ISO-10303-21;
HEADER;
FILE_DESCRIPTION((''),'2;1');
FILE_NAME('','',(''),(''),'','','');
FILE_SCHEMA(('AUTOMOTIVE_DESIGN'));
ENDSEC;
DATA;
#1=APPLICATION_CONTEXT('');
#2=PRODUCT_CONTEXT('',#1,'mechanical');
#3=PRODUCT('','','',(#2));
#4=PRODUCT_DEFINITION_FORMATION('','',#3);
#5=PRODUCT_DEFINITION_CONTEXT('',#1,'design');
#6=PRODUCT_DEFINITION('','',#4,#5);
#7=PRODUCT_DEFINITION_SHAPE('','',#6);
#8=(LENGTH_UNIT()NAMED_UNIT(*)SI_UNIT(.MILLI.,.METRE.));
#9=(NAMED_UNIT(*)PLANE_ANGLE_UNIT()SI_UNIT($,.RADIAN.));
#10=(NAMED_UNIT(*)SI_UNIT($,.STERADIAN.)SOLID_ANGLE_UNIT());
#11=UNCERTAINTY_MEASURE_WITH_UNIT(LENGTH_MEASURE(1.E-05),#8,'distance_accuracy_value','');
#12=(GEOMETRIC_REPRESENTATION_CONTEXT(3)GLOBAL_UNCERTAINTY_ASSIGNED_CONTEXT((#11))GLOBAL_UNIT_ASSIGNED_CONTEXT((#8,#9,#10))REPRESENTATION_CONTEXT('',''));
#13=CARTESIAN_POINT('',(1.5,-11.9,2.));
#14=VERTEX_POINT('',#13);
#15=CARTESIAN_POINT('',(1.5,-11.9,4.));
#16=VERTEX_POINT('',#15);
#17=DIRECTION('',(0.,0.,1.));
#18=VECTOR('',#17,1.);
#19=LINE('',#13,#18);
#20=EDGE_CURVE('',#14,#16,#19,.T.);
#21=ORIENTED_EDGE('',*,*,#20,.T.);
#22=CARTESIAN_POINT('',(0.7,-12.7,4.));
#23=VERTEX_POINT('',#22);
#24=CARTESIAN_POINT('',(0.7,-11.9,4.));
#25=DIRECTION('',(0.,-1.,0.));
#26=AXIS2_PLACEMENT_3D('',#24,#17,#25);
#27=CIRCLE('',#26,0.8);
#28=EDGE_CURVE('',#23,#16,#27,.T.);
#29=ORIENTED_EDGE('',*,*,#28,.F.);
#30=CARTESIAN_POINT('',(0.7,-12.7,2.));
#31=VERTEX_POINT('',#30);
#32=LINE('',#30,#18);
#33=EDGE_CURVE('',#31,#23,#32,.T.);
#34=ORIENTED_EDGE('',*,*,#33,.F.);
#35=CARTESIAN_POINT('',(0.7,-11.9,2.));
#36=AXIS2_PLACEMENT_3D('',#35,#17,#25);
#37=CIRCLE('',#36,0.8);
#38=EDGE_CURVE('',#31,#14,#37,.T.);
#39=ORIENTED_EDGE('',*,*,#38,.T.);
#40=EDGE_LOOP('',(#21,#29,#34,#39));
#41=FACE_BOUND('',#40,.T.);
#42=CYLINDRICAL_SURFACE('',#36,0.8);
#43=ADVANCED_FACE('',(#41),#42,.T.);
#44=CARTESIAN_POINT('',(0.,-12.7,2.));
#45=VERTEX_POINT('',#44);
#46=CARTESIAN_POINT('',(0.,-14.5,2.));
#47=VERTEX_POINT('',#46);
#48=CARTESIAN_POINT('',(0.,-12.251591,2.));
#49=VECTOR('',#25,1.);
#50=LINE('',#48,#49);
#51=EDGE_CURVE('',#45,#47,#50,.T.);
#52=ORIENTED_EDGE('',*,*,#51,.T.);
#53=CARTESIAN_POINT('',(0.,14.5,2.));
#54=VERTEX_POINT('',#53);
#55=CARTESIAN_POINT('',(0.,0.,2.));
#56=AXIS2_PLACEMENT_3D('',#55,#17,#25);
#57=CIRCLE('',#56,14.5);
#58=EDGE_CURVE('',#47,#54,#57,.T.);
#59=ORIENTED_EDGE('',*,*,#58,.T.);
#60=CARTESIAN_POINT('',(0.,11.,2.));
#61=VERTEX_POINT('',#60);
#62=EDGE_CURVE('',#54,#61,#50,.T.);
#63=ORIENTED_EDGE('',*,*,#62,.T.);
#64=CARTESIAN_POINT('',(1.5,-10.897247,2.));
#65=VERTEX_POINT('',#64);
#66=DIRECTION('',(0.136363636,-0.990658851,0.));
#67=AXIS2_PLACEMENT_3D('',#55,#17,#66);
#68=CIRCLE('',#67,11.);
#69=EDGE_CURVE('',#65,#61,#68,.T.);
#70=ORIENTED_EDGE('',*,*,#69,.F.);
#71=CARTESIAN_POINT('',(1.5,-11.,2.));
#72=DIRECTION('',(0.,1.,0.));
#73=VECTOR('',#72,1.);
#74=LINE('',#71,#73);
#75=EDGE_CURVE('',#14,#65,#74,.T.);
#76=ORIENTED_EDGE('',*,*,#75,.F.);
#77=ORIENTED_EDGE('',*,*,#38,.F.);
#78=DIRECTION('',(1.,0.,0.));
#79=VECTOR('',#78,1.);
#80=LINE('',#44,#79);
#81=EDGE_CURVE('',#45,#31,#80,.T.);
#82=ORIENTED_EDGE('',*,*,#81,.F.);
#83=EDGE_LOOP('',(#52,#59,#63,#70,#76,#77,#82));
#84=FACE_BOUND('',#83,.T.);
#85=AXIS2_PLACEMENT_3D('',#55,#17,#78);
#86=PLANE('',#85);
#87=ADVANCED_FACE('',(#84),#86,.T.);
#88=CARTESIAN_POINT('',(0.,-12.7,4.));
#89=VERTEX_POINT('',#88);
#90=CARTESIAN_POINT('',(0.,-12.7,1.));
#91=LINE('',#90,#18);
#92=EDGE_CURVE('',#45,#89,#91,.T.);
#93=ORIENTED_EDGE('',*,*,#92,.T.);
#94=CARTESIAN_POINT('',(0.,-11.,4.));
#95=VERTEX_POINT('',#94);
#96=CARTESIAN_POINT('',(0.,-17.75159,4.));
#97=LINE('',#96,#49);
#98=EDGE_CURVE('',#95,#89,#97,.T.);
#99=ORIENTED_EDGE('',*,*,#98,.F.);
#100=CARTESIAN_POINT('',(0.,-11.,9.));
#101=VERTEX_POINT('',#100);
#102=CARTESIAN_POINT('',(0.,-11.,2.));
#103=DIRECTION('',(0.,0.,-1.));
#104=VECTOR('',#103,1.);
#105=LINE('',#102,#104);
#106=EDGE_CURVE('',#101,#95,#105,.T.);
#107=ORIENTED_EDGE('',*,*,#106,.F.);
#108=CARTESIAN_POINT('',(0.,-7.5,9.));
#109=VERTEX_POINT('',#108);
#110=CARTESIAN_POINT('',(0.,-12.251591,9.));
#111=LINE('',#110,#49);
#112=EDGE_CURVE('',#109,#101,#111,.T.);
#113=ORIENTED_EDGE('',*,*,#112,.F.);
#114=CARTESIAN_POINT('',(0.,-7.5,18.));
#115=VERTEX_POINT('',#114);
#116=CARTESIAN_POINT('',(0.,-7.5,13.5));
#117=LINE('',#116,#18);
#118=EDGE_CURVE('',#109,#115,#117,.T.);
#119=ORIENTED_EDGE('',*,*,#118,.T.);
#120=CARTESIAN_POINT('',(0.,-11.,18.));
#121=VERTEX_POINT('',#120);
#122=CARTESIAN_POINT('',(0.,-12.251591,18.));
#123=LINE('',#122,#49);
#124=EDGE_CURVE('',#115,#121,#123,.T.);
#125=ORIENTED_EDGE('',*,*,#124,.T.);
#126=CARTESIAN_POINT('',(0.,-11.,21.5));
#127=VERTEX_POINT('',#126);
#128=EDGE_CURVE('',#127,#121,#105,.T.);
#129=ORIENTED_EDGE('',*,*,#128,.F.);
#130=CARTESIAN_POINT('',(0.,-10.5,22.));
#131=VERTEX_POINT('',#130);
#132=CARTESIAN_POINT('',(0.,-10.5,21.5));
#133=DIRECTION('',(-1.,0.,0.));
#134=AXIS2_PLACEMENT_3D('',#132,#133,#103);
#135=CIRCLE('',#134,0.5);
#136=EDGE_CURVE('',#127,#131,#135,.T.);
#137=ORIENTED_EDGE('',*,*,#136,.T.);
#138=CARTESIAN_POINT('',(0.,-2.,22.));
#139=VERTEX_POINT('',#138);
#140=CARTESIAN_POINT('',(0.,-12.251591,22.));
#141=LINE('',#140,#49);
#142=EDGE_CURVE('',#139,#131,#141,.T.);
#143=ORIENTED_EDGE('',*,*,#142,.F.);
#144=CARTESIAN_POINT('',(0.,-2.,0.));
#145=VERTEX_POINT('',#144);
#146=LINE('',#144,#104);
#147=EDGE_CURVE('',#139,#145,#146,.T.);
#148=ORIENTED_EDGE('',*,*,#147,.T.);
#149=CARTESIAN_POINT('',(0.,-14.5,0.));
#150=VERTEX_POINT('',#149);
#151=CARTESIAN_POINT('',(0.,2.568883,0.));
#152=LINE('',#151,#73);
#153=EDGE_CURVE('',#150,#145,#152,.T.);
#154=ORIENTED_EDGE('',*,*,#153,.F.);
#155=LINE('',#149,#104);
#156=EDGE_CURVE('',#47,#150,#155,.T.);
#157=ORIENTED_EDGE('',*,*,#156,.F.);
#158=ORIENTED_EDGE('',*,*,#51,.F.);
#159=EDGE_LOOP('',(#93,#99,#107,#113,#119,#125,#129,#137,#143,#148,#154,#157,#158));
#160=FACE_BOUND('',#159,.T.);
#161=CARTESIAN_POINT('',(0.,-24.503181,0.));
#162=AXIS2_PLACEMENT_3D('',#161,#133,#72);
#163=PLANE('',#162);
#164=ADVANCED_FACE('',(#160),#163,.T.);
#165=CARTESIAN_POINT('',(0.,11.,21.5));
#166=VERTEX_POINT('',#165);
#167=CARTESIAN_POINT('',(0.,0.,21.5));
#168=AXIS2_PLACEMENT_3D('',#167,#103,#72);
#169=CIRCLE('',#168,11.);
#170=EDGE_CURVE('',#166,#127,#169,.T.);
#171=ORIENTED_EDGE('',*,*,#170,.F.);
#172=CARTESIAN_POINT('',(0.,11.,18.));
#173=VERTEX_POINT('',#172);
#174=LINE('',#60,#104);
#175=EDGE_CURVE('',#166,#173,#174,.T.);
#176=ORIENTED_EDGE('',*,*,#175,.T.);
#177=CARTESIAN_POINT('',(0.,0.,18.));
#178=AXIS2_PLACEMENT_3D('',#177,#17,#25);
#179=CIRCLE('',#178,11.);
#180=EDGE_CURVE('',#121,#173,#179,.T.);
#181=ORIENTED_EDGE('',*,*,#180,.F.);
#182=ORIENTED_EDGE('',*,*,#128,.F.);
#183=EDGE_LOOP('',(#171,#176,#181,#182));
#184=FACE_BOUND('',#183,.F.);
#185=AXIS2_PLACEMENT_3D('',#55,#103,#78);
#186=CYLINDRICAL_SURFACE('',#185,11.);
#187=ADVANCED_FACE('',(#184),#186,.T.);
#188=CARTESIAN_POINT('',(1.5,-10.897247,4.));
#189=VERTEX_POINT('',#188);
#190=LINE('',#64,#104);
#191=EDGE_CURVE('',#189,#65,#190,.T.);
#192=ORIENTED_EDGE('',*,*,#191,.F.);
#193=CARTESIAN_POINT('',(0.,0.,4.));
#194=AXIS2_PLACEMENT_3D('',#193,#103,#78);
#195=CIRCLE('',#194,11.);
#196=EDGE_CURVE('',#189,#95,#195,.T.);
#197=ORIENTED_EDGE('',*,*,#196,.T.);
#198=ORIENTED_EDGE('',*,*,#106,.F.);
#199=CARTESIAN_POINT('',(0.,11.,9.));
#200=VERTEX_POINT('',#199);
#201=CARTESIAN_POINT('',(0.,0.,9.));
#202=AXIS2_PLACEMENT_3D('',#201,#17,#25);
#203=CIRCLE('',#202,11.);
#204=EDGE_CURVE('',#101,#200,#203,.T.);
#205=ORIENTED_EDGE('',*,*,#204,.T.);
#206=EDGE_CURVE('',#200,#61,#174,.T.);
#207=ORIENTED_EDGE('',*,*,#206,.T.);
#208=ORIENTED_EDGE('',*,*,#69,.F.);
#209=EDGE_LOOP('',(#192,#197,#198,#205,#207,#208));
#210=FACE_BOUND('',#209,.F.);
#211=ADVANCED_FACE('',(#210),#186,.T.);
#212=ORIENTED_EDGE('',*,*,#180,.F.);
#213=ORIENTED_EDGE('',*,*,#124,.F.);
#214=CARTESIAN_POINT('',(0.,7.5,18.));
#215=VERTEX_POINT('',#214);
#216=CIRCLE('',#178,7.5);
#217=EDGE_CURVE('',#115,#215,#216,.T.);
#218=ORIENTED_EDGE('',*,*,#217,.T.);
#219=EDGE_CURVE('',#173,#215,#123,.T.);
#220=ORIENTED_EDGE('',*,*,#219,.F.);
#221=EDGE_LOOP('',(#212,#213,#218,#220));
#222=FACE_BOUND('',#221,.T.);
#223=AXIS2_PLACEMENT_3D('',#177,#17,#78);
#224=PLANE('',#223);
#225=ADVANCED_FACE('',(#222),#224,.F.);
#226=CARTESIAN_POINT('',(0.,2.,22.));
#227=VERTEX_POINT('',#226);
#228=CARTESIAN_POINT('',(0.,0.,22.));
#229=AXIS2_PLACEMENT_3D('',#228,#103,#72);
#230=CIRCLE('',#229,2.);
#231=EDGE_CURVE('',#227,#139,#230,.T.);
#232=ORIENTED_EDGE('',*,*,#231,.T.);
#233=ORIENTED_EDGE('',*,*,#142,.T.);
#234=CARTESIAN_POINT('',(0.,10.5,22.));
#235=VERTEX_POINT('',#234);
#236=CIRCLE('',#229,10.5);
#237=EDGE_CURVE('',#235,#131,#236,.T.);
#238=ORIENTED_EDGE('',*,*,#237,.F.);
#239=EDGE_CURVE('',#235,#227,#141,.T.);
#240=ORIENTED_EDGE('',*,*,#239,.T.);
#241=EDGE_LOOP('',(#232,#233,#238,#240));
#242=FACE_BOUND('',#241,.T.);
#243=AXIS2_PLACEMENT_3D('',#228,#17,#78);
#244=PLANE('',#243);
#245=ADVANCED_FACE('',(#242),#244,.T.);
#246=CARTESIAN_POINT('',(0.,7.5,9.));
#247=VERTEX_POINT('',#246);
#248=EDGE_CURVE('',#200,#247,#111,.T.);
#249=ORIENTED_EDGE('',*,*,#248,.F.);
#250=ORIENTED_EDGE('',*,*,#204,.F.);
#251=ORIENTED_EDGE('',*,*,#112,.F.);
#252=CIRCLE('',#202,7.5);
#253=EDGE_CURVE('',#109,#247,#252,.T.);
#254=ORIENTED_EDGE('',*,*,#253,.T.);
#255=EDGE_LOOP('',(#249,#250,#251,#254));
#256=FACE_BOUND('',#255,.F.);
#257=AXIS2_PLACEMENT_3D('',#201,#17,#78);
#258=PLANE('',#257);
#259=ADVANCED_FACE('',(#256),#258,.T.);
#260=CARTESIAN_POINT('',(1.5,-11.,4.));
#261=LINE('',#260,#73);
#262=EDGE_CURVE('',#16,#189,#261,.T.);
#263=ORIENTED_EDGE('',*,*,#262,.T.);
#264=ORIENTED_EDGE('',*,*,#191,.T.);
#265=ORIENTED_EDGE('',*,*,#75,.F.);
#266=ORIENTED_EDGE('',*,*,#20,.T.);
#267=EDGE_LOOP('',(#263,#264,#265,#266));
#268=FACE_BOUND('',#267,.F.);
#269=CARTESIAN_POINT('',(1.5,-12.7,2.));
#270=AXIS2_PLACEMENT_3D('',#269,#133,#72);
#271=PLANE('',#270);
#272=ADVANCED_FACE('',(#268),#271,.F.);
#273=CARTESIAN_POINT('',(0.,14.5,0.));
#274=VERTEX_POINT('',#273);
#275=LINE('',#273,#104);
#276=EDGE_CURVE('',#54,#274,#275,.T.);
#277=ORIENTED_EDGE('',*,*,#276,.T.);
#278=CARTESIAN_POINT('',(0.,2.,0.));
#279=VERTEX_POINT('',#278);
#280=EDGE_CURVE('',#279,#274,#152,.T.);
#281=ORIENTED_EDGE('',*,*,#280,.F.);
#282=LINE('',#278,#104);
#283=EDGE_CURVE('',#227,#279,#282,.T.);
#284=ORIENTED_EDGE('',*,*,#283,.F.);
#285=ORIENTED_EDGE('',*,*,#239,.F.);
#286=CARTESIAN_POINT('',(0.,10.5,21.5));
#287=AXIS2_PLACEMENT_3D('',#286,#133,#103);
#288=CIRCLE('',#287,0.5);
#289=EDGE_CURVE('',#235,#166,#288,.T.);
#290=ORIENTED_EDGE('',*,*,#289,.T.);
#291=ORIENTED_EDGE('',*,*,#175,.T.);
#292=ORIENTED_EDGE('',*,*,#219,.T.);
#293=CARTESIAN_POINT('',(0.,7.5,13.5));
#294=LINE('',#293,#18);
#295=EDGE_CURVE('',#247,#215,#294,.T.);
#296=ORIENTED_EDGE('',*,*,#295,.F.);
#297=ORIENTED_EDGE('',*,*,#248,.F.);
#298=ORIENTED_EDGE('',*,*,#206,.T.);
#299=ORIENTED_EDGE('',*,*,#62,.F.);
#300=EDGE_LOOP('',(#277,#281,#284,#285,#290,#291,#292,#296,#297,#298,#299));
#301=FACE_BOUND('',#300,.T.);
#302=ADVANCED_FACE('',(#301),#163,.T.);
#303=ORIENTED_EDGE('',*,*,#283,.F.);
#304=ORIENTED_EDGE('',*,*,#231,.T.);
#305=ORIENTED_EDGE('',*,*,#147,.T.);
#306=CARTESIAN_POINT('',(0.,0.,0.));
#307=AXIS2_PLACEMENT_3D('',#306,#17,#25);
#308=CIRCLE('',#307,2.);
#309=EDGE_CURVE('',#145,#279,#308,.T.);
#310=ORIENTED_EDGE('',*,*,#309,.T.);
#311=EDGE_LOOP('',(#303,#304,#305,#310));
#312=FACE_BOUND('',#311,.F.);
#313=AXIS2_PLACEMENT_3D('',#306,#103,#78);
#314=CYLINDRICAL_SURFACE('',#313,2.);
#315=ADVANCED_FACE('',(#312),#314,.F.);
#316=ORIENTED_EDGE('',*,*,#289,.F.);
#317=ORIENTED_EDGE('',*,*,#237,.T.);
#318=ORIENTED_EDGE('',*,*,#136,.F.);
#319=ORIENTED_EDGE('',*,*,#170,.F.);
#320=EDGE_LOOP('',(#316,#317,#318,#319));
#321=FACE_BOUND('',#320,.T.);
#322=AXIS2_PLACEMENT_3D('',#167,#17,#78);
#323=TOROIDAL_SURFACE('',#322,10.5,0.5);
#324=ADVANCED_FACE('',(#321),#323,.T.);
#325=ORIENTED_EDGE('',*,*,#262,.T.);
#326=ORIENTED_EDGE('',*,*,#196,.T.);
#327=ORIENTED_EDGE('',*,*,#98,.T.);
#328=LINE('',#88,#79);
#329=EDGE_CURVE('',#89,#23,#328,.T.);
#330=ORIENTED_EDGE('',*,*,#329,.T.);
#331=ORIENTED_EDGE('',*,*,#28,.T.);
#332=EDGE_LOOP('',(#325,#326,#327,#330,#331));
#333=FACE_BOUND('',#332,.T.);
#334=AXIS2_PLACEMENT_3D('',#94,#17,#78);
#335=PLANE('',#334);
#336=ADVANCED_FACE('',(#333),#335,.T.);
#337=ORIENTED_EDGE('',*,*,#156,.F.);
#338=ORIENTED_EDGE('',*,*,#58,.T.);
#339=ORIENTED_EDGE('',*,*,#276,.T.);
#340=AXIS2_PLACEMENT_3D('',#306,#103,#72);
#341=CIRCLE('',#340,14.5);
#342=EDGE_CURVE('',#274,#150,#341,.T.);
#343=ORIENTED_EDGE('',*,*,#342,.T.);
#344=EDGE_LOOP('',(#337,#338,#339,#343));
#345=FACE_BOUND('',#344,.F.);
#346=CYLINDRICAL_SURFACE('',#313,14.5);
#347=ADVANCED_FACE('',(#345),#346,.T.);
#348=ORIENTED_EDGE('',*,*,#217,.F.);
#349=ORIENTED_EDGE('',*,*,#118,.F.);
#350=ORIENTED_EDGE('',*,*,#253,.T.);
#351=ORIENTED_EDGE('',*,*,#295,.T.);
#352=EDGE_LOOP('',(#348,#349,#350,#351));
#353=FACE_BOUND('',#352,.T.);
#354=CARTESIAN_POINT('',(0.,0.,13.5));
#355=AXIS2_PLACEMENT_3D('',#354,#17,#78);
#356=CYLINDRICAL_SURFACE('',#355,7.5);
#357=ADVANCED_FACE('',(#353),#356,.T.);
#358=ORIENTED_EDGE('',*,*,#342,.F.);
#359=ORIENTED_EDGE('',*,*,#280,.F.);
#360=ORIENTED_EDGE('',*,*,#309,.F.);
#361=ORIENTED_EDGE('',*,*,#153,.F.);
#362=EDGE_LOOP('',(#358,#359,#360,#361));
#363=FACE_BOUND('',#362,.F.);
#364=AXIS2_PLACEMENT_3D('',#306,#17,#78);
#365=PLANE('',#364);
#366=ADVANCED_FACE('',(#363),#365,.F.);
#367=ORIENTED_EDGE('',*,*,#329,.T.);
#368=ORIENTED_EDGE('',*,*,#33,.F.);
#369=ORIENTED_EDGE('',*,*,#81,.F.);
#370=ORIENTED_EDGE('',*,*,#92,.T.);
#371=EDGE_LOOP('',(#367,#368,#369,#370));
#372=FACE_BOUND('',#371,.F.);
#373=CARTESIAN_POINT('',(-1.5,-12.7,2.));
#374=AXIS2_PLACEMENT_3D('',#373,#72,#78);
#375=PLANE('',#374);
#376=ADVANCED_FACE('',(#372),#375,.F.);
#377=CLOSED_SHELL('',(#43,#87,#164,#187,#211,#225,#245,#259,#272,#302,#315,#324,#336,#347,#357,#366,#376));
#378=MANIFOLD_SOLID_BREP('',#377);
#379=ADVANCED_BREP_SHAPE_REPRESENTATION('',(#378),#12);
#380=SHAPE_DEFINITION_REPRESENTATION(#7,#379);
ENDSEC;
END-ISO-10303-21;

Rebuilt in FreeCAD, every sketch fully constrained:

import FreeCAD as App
import Part
import Sketcher
Q = App.Units.Quantity


def edges_at(feature, points):
    """Names of the edges that pass closest to the given points."""
    edges = feature.Shape.Edges
    near = lambda p: min(range(len(edges)), key=lambda i: edges[i].distToShape(Part.Vertex(*p))[0])
    return sorted({f"Edge{near(p) + 1}" for p in points})

doc = App.newDocument("Part")
body = doc.addObject("PartDesign::Body", "Body")

sketch1 = body.newObject("Sketcher::SketchObject", "Sketch")
sketch1.AttachmentSupport = (doc.getObject("XY_Plane"), [""])
sketch1.MapMode = "FlatFace"
sketch1.addGeometry(Part.Circle(App.Vector(0, 0, 0), App.Vector(0, 0, 1), 14.5), False)
sketch1.addConstraint([
    Sketcher.Constraint("Coincident", 0, 3, -1, 1),
    Sketcher.Constraint("Diameter", 0, Q("29 mm")),
])
pad1 = body.newObject("PartDesign::Pad", "Pad")
pad1.Profile = sketch1
pad1.Length = 2

sketch2 = body.newObject("Sketcher::SketchObject", "Sketch001")
sketch2.AttachmentSupport = (doc.getObject("XY_Plane"), [""])
sketch2.MapMode = "FlatFace"
sketch2.AttachmentOffset = App.Placement(App.Vector(0, 0, 2), App.Rotation())
sketch2.addGeometry(Part.Circle(App.Vector(0, 0, 0), App.Vector(0, 0, 1), 11), False)
sketch2.addConstraint([
    Sketcher.Constraint("Coincident", 0, 3, -1, 1),
    Sketcher.Constraint("Diameter", 0, Q("22 mm")),
])
pad2 = body.newObject("PartDesign::Pad", "Pad001")
pad2.Profile = sketch2
pad2.Length = 20

sketch3 = body.newObject("Sketcher::SketchObject", "Sketch002")
sketch3.AttachmentSupport = (doc.getObject("XY_Plane"), [""])
sketch3.MapMode = "FlatFace"
sketch3.addGeometry(Part.Circle(App.Vector(0, 0, 0), App.Vector(0, 0, 1), 2), False)
sketch3.addConstraint([
    Sketcher.Constraint("Coincident", 0, 3, -1, 1),
    Sketcher.Constraint("Diameter", 0, Q("4 mm")),
])
pocket1 = body.newObject("PartDesign::Pocket", "Pocket")
pocket1.Profile = sketch3
pocket1.Type = "ThroughAll"
pocket1.Reversed = True

sketch4 = body.newObject("Sketcher::SketchObject", "Sketch003")
sketch4.AttachmentSupport = (doc.getObject("XY_Plane"), [""])
sketch4.MapMode = "FlatFace"
sketch4.AttachmentOffset = App.Placement(App.Vector(0, 0, 2), App.Rotation())
sketch4.addGeometry([
    Part.LineSegment(App.Vector(-1.5, -9.3, 0), App.Vector(-1.5, -12.7, 0)),
    Part.LineSegment(App.Vector(-1.5, -12.7, 0), App.Vector(1.5, -12.7, 0)),
    Part.LineSegment(App.Vector(1.5, -12.7, 0), App.Vector(1.5, -9.3, 0)),
    Part.LineSegment(App.Vector(1.5, -9.3, 0), App.Vector(-1.5, -9.3, 0)),
], False)
sketch4.addConstraint([
    Sketcher.Constraint("Coincident", 0, 2, 1, 1),
    Sketcher.Constraint("Coincident", 1, 2, 2, 1),
    Sketcher.Constraint("Coincident", 2, 2, 3, 1),
    Sketcher.Constraint("Coincident", 3, 2, 0, 1),
    Sketcher.Constraint("Vertical", 0),
    Sketcher.Constraint("Horizontal", 1),
    Sketcher.Constraint("Vertical", 2),
    Sketcher.Constraint("Horizontal", 3),
    Sketcher.Constraint("DistanceX", 1, 1, 1, 2, Q("3 mm")),
    Sketcher.Constraint("DistanceY", 0, 2, 0, 1, Q("3.4 mm")),
    Sketcher.Constraint("DistanceX", 0, 2, -1, 1, Q("1.5 mm")),
    Sketcher.Constraint("DistanceY", 0, 2, -1, 1, Q("12.7 mm")),
])
pad3 = body.newObject("PartDesign::Pad", "Pad002")
pad3.Profile = sketch4
pad3.Length = 2
doc.recompute()

fillet = body.newObject("PartDesign::Fillet", "Fillet")
fillet.Base = (pad3, edges_at(pad3, [(-1.5, -12.7, 3), (1.5, -12.7, 3)]))
fillet.Radius = 0.8
doc.recompute()

fillet2 = body.newObject("PartDesign::Fillet", "Fillet001")
fillet2.Base = (fillet, edges_at(fillet, [(-11, 0, 22)]))
fillet2.Radius = 0.5

sketch5 = body.newObject("Sketcher::SketchObject", "Sketch004")
sketch5.AttachmentSupport = (doc.getObject("XY_Plane"), [""])
sketch5.MapMode = "FlatFace"
sketch5.addGeometry([
    Part.LineSegment(App.Vector(-28.85052, 29.640947, 0), App.Vector(-28.85052, -24.503181, 0)),
    Part.LineSegment(App.Vector(-28.85052, -24.503181, 0), App.Vector(0, -24.503181, 0)),
    Part.LineSegment(App.Vector(0, -24.503181, 0), App.Vector(0, 29.640947, 0)),
    Part.LineSegment(App.Vector(0, 29.640947, 0), App.Vector(-28.85052, 29.640947, 0)),
], False)
sketch5.addConstraint([
    Sketcher.Constraint("Coincident", 0, 2, 1, 1),
    Sketcher.Constraint("Coincident", 1, 2, 2, 1),
    Sketcher.Constraint("Coincident", 2, 2, 3, 1),
    Sketcher.Constraint("Coincident", 3, 2, 0, 1),
    Sketcher.Constraint("Vertical", 0),
    Sketcher.Constraint("Horizontal", 1),
    Sketcher.Constraint("Vertical", 2),
    Sketcher.Constraint("Horizontal", 3),
    Sketcher.Constraint("PointOnObject", 1, 2, -2),
    Sketcher.Constraint("DistanceX", 1, 1, 1, 2, Q("28.85052 mm")),
    Sketcher.Constraint("DistanceY", 0, 2, 0, 1, Q("54.144128 mm")),
    Sketcher.Constraint("DistanceY", 0, 2, -1, 1, Q("24.503181 mm")),
])
pocket2 = body.newObject("PartDesign::Pocket", "Pocket001")
pocket2.Profile = sketch5
pocket2.Type = "ThroughAll"
pocket2.Reversed = True

sketch6 = body.newObject("Sketcher::SketchObject", "Sketch005")
sketch6.AttachmentSupport = (doc.getObject("XZ_Plane"), [""])
sketch6.MapMode = "FlatFace"
sketch6.addGeometry([
    Part.LineSegment(App.Vector(7.5, 18, 0), App.Vector(7.5, 9, 0)),
    Part.LineSegment(App.Vector(7.5, 9, 0), App.Vector(11, 9, 0)),
    Part.LineSegment(App.Vector(11, 9, 0), App.Vector(11, 18, 0)),
    Part.LineSegment(App.Vector(11, 18, 0), App.Vector(7.5, 18, 0)),
], False)
sketch6.addConstraint([
    Sketcher.Constraint("Coincident", 0, 2, 1, 1),
    Sketcher.Constraint("Coincident", 1, 2, 2, 1),
    Sketcher.Constraint("Coincident", 2, 2, 3, 1),
    Sketcher.Constraint("Coincident", 3, 2, 0, 1),
    Sketcher.Constraint("Vertical", 0),
    Sketcher.Constraint("Horizontal", 1),
    Sketcher.Constraint("Vertical", 2),
    Sketcher.Constraint("Horizontal", 3),
    Sketcher.Constraint("DistanceY", 0, 2, 0, 1, Q("9 mm")),
    Sketcher.Constraint("DistanceX", 1, 1, 1, 2, Q("3.5 mm")),
    Sketcher.Constraint("DistanceY", -1, 1, 0, 2, Q("9 mm")),
    Sketcher.Constraint("DistanceX", -1, 1, 1, 2, Q("11 mm")),
])
groove = body.newObject("PartDesign::Groove", "Groove")
groove.Profile = sketch6
groove.ReferenceAxis = (sketch6, ["V_Axis"])
groove.Angle = 360

doc.recompute()
